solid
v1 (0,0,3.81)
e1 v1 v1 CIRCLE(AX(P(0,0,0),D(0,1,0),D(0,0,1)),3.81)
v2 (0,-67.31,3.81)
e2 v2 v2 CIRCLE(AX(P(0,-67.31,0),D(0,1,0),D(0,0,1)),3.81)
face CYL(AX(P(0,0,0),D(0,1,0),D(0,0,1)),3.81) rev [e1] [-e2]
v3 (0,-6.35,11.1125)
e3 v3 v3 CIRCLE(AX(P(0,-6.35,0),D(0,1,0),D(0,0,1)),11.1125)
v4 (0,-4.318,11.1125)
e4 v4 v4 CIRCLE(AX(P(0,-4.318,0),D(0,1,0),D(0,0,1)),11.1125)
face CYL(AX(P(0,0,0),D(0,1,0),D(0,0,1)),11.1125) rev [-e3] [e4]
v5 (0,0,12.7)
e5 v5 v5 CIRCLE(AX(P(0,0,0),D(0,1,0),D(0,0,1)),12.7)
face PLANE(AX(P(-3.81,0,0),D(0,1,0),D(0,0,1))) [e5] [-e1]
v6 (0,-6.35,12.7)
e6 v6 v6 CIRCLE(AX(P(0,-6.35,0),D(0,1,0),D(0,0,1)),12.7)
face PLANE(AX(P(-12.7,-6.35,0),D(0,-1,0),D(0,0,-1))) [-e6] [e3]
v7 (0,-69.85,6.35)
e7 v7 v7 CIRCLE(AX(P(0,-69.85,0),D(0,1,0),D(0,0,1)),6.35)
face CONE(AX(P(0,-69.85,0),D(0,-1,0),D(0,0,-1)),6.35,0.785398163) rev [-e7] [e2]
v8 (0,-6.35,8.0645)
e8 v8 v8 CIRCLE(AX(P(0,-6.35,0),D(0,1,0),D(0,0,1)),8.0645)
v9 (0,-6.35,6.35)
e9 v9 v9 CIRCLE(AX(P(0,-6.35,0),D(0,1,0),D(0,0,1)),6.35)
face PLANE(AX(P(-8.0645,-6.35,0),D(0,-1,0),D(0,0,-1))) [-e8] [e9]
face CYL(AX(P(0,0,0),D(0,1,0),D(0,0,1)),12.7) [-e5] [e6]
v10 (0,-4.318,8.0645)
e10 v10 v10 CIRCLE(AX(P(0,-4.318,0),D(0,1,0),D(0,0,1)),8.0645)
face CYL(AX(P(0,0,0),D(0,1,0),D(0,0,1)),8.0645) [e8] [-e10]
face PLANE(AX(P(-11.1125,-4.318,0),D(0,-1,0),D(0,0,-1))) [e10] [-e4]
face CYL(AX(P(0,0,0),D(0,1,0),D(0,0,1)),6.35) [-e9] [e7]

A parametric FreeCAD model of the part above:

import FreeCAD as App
import Part
import Sketcher
from FreeCAD import Vector
Q = App.Units.Quantity


def add_polygon(sketch, points):
    """Adds a closed chain of lines whose ends are joined by coincident constraints."""
    first, n = sketch.GeometryCount, len(points)
    for a, b in zip(points, points[1:] + points[:1]):
        sketch.addGeometry(Part.LineSegment(App.Vector(*a, 0), App.Vector(*b, 0)), False)
    for i in range(n):
        sketch.addConstraint(Sketcher.Constraint("Coincident", first + i, 2, first + (i + 1) % n, 1))

doc = App.newDocument("Part")
body = doc.addObject("PartDesign::Body", "Body")

# Sketch on XY plane
sketch1 = body.newObject("Sketcher::SketchObject", "Sketch")
sketch1.AttachmentSupport = (doc.getObject("XY_Plane"), [""])
sketch1.MapMode = "FlatFace"
add_polygon(sketch1, [(-3.8, 0), (-12.7, 0), (-12.7, -6.3), (-11.1, -6.3), (-11.1, -4.3), (-8.1, -4.3), (-8.1, -6.3), (-6.3, -6.3), (-6.3, -69.8), (-3.8, -67.3)])  # lines 0-9
sketch1.addConstraint(Sketcher.Constraint("Horizontal", 0))
sketch1.addConstraint(Sketcher.Constraint("Vertical", 1))
sketch1.addConstraint(Sketcher.Constraint("Horizontal", 2))
sketch1.addConstraint(Sketcher.Constraint("Vertical", 3))
sketch1.addConstraint(Sketcher.Constraint("Horizontal", 4))
sketch1.addConstraint(Sketcher.Constraint("Vertical", 5))
sketch1.addConstraint(Sketcher.Constraint("Horizontal", 6))
sketch1.addConstraint(Sketcher.Constraint("Vertical", 7))
sketch1.addConstraint(Sketcher.Constraint("Vertical", 9))
sketch1.addConstraint(Sketcher.Constraint("PointOnObject", 0, 2, -1))
sketch1.addConstraint(Sketcher.Constraint("Horizontal", 2, 2, 5, 2))
sketch1.addConstraint(Sketcher.Constraint("DistanceY", 7, 2, 7, 1, Q("2.5 in")))
sketch1.addConstraint(Sketcher.Constraint("Angle", 8, Q("45 deg")))
sketch1.addConstraint(Sketcher.Constraint("DistanceX", 0, 2, 0, 1, Q("0.35 in")))
sketch1.addConstraint(Sketcher.Constraint("DistanceX", 4, 1, 4, 2, Q("0.12 in")))
sketch1.addConstraint(Sketcher.Constraint("DistanceY", 1, 2, 1, 1, Q("0.25 in")))
sketch1.addConstraint(Sketcher.Constraint("DistanceY", 3, 1, 3, 2, Q("0.08 in")))
sketch1.addConstraint(Sketcher.Constraint("DistanceY", 9, 1, 9, 2, Q("2.65 in")))
sketch1.addConstraint(Sketcher.Constraint("DistanceX", 0, 2, -1, 1, Q("0.5 in")))
sketch1.addConstraint(Sketcher.Constraint("DistanceX", 2, 1, 2, 2, Q("0.0625 in")))
revolution = body.newObject("PartDesign::Revolution", "Revolution")
revolution.Profile = sketch1
revolution.ReferenceAxis = (sketch1, ["V_Axis"])
revolution.Angle = 360

doc.recompute()
